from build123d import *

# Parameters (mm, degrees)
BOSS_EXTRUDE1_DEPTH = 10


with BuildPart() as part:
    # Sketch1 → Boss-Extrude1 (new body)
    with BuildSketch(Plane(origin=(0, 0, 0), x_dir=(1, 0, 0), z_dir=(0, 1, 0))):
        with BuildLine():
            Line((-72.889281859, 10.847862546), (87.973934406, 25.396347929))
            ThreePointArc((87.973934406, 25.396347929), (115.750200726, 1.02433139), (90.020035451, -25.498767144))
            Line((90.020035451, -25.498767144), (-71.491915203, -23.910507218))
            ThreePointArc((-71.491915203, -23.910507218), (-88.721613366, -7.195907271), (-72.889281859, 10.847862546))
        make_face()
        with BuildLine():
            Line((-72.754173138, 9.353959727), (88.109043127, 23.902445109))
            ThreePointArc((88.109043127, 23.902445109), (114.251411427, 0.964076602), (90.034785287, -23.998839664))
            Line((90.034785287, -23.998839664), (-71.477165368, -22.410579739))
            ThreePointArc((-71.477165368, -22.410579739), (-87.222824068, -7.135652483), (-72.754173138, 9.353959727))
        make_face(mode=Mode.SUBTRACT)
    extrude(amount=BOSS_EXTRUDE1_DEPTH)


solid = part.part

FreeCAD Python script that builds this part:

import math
import FreeCAD as App
import Part
import Sketcher

V = App.Vector

doc = App.newDocument("Part")
body = doc.addObject("PartDesign::Body", "Body")

sketch1 = doc.addObject("Sketcher::SketchObject", "Sketch")
body.addObject(sketch1)
sketch1.AttachmentSupport = (doc.XZ_Plane, [""])
sketch1.MapMode = "FlatFace"
sketch1.addGeometry(Part.LineSegment(V(88, -25, 0), V(-73, -11, 0)), False)
sketch1.addGeometry(Part.ArcOfCircle(Part.Circle(V(-71, 6, 0), V(0, 0, 1), 17), math.radians(91), math.radians(265)), False)
sketch1.addGeometry(Part.LineSegment(V(-71, 24, 0), V(90, 25, 0)), False)
sketch1.addGeometry(Part.ArcOfCircle(Part.Circle(V(90, 0, 0), V(0, 0, 1), 26), math.radians(-95), math.radians(91)), False)
sketch1.addGeometry(Part.LineSegment(V(-73, -9, 0), V(88, -24, 0)), False)
sketch1.addGeometry(Part.ArcOfCircle(Part.Circle(V(90, 0, 0), V(0, 0, 1), 24), math.radians(-95), math.radians(91)), False)
sketch1.addGeometry(Part.LineSegment(V(90, 24, 0), V(-71, 22, 0)), False)
sketch1.addGeometry(Part.ArcOfCircle(Part.Circle(V(-71, 6, 0), V(0, 0, 1), 16), math.radians(91), math.radians(265)), False)
sketch1.addConstraint(Sketcher.Constraint("Tangent", 0, 2, 1, 2))
sketch1.addConstraint(Sketcher.Constraint("Tangent", 1, 1, 2, 1))
sketch1.addConstraint(Sketcher.Constraint("Tangent", 2, 2, 3, 2))
sketch1.addConstraint(Sketcher.Constraint("Tangent", 3, 1, 0, 1))
sketch1.addConstraint(Sketcher.Constraint("Tangent", 4, 2, 5, 1))
sketch1.addConstraint(Sketcher.Constraint("Tangent", 5, 2, 6, 1))
sketch1.addConstraint(Sketcher.Constraint("Tangent", 6, 2, 7, 1))
sketch1.addConstraint(Sketcher.Constraint("Tangent", 7, 2, 4, 1))
sketch1.addConstraint(Sketcher.Constraint("Coincident", 5, 3, 3, 3))
sketch1.addConstraint(Sketcher.Constraint("Coincident", 7, 3, 1, 3))
sketch1.addConstraint(Sketcher.Constraint("PointOnObject", 3, 3, -1))
sketch1.addConstraint(Sketcher.Constraint("Parallel", 0, 4))
sketch1.addConstraint(Sketcher.Constraint("Radius", 5, 24.0))
sketch1.addConstraint(Sketcher.Constraint("Radius", 3, 25.5))
sketch1.addConstraint(Sketcher.Constraint("Radius", 1, 17.415))
sketch1.addConstraint(Sketcher.Constraint("DistanceX", 3, 1, 2, 2, 2.046101))
sketch1.addConstraint(Sketcher.Constraint("Distance", 0, 161.51976))
sketch1.addConstraint(Sketcher.Constraint("DistanceX", 1, 3, -1, 1, 71.32067))
pad1 = doc.addObject("PartDesign::Pad", "Pad")
body.addObject(pad1)
pad1.Profile = sketch1
pad1.Length = 10
pad1.Reversed = True

doc.recompute()
